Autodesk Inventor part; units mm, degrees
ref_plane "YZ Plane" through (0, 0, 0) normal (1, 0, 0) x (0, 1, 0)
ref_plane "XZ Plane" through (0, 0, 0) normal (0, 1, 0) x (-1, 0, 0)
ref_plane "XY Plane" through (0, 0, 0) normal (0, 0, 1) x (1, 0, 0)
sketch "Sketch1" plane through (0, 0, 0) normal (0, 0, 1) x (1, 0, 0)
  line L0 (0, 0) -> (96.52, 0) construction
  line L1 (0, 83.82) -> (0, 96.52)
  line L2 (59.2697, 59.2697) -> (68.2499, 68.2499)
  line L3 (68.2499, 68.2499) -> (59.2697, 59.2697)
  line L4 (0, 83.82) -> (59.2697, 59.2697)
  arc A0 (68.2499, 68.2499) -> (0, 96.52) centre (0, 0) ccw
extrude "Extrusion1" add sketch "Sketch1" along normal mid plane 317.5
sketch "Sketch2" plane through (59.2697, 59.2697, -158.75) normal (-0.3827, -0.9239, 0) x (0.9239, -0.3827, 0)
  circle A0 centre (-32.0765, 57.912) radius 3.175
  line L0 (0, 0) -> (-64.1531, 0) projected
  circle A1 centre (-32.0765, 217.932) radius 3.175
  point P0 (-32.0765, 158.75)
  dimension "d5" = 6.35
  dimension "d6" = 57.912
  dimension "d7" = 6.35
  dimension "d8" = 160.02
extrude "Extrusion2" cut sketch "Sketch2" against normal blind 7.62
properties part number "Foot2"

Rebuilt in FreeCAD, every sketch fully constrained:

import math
import FreeCAD as App
import Part
import Sketcher

V = App.Vector
Q = App.Units.Quantity

doc = App.newDocument("Part")
body = doc.addObject("PartDesign::Body", "Body")

sketch1 = body.newObject("Sketcher::SketchObject", "Sketch")
sketch1.AttachmentSupport = (doc.getObject("XY_Plane"), [""])
sketch1.MapMode = "FlatFace"
sketch1.addGeometry([
    Part.LineSegment(V(0, 97, 0), V(0, 84, 0)),
    Part.LineSegment(V(0, 84, 0), V(59, 59, 0)),
    Part.LineSegment(V(59, 59, 0), V(68, 68, 0)),
    Part.ArcOfCircle(Part.Circle(V(0, 0, 0), V(0, 0, 1), 97), math.radians(45), math.radians(90)),
], False)
sketch1.addConstraint([
    Sketcher.Constraint("Coincident", 0, 2, 1, 1),
    Sketcher.Constraint("Coincident", 1, 2, 2, 1),
    Sketcher.Constraint("Coincident", 2, 2, 3, 1),
    Sketcher.Constraint("Coincident", 3, 2, 0, 1),
    Sketcher.Constraint("Vertical", 0),
    Sketcher.Constraint("Coincident", 3, 3, -1, 1),
    Sketcher.Constraint("PointOnObject", 0, 2, -2),
    Sketcher.Constraint("Radius", 3, Q("3.8 in")),
    Sketcher.Constraint("DistanceY", 0, 2, 0, 1, Q("0.5 in")),
    Sketcher.Constraint("Angle", 2, Q("45 deg")),
    Sketcher.Constraint("Distance", 2, Q("0.5 in")),
    Sketcher.Constraint("Angle", 1, Q("-22.5 deg")),
])
pad1 = body.newObject("PartDesign::Pad", "Pad")
pad1.Profile = sketch1
pad1.Length = Q("12.5 in")
pad1.Midplane = True

sketch2 = body.newObject("Sketcher::SketchObject", "Sketch001")
sketch2.Placement = App.Placement(V(59.2697, 59.2697, -158.75), App.Rotation(V(0.923879533, -0.382683432, 0), V(0, 0, 1.000000001), V(-0.382683432, -0.923879533, 0), "ZXY"))
sketch2.addGeometry([
    Part.Circle(V(-32.1, 57.9, 0), V(0, 0, 1), 3.2),
    Part.Circle(V(-32.1, 217.9, 0), V(0, 0, 1), 3.2),
], False)
sketch2.addConstraint([
    Sketcher.Constraint("Equal", 0, 1),
    Sketcher.Constraint("Vertical", 0, 3, 1, 3),
    Sketcher.Constraint("Diameter", 0, Q("0.25 in")),
    Sketcher.Constraint("DistanceY", 0, 3, 1, 3, Q("6.3 in")),
    Sketcher.Constraint("DistanceY", -1, 1, 0, 3, Q("2.28 in")),
    Sketcher.Constraint("DistanceX", 0, 3, -1, 1, Q("32.0765 mm")),
])
pocket1 = body.newObject("PartDesign::Pocket", "Pocket")
pocket1.Profile = sketch2
pocket1.Length = Q("0.3 in")

doc.recompute()
